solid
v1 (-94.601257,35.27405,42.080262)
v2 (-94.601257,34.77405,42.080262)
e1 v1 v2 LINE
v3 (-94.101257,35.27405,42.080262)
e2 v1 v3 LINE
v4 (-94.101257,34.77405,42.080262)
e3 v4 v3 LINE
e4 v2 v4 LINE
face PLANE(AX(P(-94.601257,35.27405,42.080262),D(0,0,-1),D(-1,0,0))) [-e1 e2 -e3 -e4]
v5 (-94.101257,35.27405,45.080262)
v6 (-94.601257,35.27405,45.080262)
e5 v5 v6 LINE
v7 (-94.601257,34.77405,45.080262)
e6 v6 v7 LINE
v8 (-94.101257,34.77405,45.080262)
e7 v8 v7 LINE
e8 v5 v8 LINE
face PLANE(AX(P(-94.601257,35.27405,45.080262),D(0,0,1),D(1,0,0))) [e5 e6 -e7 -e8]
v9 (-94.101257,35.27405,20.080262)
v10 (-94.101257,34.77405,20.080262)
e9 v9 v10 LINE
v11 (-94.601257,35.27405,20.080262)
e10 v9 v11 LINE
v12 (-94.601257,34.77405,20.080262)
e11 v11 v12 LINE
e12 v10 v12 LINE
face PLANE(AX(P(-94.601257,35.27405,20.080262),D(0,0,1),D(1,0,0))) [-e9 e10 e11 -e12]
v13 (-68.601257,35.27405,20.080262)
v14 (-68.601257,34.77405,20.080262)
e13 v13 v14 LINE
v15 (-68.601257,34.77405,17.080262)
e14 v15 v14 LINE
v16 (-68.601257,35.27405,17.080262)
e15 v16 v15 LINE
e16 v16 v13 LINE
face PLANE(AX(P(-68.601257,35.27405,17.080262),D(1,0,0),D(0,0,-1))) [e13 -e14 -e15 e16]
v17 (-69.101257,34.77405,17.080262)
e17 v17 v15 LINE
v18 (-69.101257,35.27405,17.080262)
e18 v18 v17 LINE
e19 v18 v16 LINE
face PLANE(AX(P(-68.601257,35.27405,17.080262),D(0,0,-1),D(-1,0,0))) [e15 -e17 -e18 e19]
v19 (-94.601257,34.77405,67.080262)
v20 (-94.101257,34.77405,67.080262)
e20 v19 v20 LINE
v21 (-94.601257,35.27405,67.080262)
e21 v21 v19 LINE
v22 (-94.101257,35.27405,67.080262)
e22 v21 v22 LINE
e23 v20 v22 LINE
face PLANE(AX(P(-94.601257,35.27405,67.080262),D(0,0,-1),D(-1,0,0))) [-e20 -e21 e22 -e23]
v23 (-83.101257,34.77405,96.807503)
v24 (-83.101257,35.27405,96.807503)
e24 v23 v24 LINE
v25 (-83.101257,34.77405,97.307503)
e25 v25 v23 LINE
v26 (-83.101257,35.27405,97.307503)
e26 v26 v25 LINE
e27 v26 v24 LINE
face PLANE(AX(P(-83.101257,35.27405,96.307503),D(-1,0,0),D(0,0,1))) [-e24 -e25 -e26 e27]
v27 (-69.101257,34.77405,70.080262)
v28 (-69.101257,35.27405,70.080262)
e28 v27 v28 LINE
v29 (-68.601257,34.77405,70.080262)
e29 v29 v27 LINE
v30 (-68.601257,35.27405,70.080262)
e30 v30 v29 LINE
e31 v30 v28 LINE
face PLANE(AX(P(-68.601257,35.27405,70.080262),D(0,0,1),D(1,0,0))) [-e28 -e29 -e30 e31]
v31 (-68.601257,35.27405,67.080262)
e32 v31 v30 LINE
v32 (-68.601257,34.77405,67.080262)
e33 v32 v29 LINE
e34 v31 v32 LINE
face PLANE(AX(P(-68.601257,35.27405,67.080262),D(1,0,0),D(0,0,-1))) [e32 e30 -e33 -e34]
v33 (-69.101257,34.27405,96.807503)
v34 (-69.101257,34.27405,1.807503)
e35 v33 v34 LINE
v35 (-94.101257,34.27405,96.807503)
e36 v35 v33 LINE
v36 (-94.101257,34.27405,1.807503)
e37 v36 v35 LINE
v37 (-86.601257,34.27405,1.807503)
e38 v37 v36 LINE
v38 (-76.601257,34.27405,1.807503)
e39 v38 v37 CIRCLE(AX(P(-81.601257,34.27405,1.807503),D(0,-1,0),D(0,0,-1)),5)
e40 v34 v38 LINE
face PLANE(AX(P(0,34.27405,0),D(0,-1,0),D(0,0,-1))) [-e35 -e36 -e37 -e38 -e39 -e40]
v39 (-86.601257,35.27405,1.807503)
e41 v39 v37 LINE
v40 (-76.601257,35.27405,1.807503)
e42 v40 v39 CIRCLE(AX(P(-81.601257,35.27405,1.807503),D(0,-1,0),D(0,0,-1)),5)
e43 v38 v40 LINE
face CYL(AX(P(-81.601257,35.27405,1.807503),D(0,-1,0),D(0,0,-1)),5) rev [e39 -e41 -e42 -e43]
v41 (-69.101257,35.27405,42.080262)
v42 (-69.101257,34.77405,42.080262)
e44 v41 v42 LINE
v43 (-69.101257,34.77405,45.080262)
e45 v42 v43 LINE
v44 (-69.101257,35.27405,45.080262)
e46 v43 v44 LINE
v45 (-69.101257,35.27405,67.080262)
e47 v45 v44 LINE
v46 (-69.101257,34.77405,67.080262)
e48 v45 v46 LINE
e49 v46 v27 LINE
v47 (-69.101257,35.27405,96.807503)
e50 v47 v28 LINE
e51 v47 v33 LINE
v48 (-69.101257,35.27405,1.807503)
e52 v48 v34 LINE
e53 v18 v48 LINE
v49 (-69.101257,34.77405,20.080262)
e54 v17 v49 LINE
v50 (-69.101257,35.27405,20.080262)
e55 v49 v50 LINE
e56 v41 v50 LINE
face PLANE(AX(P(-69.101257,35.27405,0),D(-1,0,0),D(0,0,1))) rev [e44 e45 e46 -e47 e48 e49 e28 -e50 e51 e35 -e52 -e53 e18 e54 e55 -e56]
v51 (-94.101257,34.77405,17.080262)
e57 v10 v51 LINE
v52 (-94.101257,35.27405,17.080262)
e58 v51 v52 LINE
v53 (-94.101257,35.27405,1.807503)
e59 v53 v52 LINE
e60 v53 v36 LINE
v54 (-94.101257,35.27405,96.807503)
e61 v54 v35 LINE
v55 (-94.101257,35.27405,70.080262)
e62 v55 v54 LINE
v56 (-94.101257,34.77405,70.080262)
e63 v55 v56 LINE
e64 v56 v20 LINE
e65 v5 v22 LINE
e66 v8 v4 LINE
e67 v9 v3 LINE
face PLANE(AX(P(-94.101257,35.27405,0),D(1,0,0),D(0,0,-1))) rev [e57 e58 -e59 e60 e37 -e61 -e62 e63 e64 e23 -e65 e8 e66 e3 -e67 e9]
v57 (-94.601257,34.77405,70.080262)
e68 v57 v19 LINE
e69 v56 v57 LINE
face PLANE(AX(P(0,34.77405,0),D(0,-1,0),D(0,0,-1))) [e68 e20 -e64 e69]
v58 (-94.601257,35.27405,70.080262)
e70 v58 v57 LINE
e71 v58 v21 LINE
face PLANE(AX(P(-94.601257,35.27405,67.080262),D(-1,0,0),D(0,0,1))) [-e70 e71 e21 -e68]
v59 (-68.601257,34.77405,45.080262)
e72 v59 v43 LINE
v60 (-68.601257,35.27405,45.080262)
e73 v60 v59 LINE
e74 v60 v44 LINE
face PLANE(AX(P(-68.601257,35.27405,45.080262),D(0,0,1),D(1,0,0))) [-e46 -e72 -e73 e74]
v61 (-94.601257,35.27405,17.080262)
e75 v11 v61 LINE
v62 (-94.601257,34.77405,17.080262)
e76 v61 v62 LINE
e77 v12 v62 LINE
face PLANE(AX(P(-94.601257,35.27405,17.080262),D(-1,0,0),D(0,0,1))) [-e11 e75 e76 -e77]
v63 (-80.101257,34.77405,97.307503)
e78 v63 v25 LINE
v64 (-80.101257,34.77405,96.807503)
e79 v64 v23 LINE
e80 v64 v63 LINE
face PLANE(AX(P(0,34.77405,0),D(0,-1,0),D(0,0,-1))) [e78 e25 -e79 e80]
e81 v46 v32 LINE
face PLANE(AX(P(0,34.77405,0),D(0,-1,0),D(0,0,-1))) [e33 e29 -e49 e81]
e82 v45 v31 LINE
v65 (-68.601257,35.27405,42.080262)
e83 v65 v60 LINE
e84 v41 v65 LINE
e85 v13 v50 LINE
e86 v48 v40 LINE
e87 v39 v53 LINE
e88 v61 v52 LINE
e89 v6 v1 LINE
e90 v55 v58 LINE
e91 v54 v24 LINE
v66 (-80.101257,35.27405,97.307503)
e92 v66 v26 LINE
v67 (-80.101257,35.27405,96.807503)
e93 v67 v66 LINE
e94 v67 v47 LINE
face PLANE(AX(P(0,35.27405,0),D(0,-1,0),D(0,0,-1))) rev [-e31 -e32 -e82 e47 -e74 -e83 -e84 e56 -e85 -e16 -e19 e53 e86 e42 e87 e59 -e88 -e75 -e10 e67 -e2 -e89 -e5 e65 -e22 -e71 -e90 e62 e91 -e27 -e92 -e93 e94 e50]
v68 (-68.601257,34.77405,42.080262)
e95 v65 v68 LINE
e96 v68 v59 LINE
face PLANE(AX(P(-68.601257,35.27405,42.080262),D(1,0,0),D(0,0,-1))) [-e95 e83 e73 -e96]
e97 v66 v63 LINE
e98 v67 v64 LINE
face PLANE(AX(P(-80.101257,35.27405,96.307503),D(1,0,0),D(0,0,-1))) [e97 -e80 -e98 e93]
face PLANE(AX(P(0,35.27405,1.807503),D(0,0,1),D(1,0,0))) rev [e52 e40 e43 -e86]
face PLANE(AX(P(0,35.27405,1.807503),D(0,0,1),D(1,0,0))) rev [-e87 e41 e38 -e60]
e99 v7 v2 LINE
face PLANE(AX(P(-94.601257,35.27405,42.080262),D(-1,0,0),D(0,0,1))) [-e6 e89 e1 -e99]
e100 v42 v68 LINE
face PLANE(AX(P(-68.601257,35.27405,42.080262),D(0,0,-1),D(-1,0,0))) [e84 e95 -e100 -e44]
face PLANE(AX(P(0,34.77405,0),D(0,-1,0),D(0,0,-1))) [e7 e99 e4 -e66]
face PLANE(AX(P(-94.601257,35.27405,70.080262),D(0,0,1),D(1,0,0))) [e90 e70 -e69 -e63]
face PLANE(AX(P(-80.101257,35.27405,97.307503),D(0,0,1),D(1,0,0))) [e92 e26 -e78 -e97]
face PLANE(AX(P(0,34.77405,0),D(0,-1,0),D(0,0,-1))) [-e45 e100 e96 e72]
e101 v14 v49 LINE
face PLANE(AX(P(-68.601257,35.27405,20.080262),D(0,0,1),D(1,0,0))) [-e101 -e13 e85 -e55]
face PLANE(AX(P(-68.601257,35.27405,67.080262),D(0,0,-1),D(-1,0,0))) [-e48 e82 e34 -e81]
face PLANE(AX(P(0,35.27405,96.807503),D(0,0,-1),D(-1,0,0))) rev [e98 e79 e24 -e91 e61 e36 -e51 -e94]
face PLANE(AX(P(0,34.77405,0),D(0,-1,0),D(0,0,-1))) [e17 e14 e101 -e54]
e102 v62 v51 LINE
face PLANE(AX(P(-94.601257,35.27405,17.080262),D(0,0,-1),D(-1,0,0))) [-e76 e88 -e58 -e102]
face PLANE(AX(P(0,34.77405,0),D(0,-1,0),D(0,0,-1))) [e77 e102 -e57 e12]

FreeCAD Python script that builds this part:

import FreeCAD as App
import Part
import Sketcher
from FreeCAD import Vector
Q = App.Units.Quantity


def add_polygon(sketch, points):
    """Adds a closed chain of lines whose ends are joined by coincident constraints."""
    first, n = sketch.GeometryCount, len(points)
    for a, b in zip(points, points[1:] + points[:1]):
        sketch.addGeometry(Part.LineSegment(App.Vector(*a, 0), App.Vector(*b, 0)), False)
    for i in range(n):
        sketch.addConstraint(Sketcher.Constraint("Coincident", first + i, 2, first + (i + 1) % n, 1))

doc = App.newDocument("Part")
body = doc.addObject("PartDesign::Body", "Body")

# Sketch on XZ plane
sketch1 = body.newObject("Sketcher::SketchObject", "Sketch")
sketch1.AttachmentSupport = (doc.getObject("XZ_Plane"), [""])
sketch1.MapMode = "FlatFace"
sketch1.AttachmentOffset = App.Placement(Vector(0, 0, -34.27405), App.Rotation())
add_polygon(sketch1, [(-94.101257, 96.807503), (-94.101257, 1.807503), (-69.101257, 1.807503), (-69.101257, 96.807503)])  # lines 0-3
sketch1.addConstraint(Sketcher.Constraint("Vertical", 0))
sketch1.addConstraint(Sketcher.Constraint("Horizontal", 1))
sketch1.addConstraint(Sketcher.Constraint("Vertical", 2))
sketch1.addConstraint(Sketcher.Constraint("Horizontal", 3))
sketch1.addConstraint(Sketcher.Constraint("DistanceX", 1, 1, 1, 2, Q("25 mm")))
sketch1.addConstraint(Sketcher.Constraint("DistanceY", 0, 2, 0, 1, Q("95 mm")))
sketch1.addConstraint(Sketcher.Constraint("DistanceX", 0, 2, -1, 1, Q("94.101257 mm")))
sketch1.addConstraint(Sketcher.Constraint("DistanceY", -1, 1, 0, 2, Q("1.807503 mm")))
pad1 = body.newObject("PartDesign::Pad", "Pad")
pad1.Profile = sketch1
pad1.Length = 1
pad1.Reversed = True

# Sketch on XZ plane
sketch2 = body.newObject("Sketcher::SketchObject", "Sketch001")
sketch2.AttachmentSupport = (doc.getObject("XZ_Plane"), [""])
sketch2.MapMode = "FlatFace"
sketch2.AttachmentOffset = App.Placement(Vector(0, 0, -34.77405), App.Rotation())
add_polygon(sketch2, [(-83.101257, 97.307503), (-83.101257, 96.307503), (-80.101257, 96.307503), (-80.101257, 97.307503)])  # lines 0-3
add_polygon(sketch2, [(-94.601257, 70.080262), (-94.601257, 67.080262), (-93.601257, 67.080262), (-93.601257, 70.080262)])  # lines 4-7
add_polygon(sketch2, [(-94.601257, 45.080262), (-94.601257, 42.080262), (-93.601257, 42.080262), (-93.601257, 45.080262)])  # lines 8-11
add_polygon(sketch2, [(-94.601257, 20.080262), (-94.601257, 17.080262), (-93.601257, 17.080262), (-93.601257, 20.080262)])  # lines 12-15
add_polygon(sketch2, [(-69.601257, 20.080262), (-69.601257, 17.080262), (-68.601257, 17.080262), (-68.601257, 20.080262)])  # lines 16-19
add_polygon(sketch2, [(-69.601257, 45.080262), (-69.601257, 42.080262), (-68.601257, 42.080262), (-68.601257, 45.080262)])  # lines 20-23
add_polygon(sketch2, [(-69.601257, 70.080262), (-69.601257, 67.080262), (-68.601257, 67.080262), (-68.601257, 70.080262)])  # lines 24-27
sketch2.addConstraint(Sketcher.Constraint("Vertical", 0))
sketch2.addConstraint(Sketcher.Constraint("Horizontal", 1))
sketch2.addConstraint(Sketcher.Constraint("Vertical", 2))
sketch2.addConstraint(Sketcher.Constraint("Horizontal", 3))
sketch2.addConstraint(Sketcher.Constraint("Vertical", 4))
sketch2.addConstraint(Sketcher.Constraint("Horizontal", 5))
sketch2.addConstraint(Sketcher.Constraint("Vertical", 6))
sketch2.addConstraint(Sketcher.Constraint("Horizontal", 7))
sketch2.addConstraint(Sketcher.Constraint("Vertical", 8))
sketch2.addConstraint(Sketcher.Constraint("Horizontal", 9))
sketch2.addConstraint(Sketcher.Constraint("Vertical", 10))
sketch2.addConstraint(Sketcher.Constraint("Horizontal", 11))
sketch2.addConstraint(Sketcher.Constraint("Vertical", 12))
sketch2.addConstraint(Sketcher.Constraint("Horizontal", 13))
sketch2.addConstraint(Sketcher.Constraint("Vertical", 14))
sketch2.addConstraint(Sketcher.Constraint("Horizontal", 15))
sketch2.addConstraint(Sketcher.Constraint("Vertical", 16))
sketch2.addConstraint(Sketcher.Constraint("Horizontal", 17))
sketch2.addConstraint(Sketcher.Constraint("Vertical", 18))
sketch2.addConstraint(Sketcher.Constraint("Horizontal", 19))
sketch2.addConstraint(Sketcher.Constraint("Vertical", 20))
sketch2.addConstraint(Sketcher.Constraint("Horizontal", 21))
sketch2.addConstraint(Sketcher.Constraint("Vertical", 22))
sketch2.addConstraint(Sketcher.Constraint("Horizontal", 23))
sketch2.addConstraint(Sketcher.Constraint("Vertical", 24))
sketch2.addConstraint(Sketcher.Constraint("Horizontal", 25))
sketch2.addConstraint(Sketcher.Constraint("Vertical", 26))
sketch2.addConstraint(Sketcher.Constraint("Horizontal", 27))
sketch2.addConstraint(Sketcher.Constraint("Horizontal", 13, 2, 16, 2))
sketch2.addConstraint(Sketcher.Constraint("Horizontal", 15, 2, 18, 2))
sketch2.addConstraint(Sketcher.Constraint("Horizontal", 9, 2, 20, 2))
sketch2.addConstraint(Sketcher.Constraint("Horizontal", 11, 2, 22, 2))
sketch2.addConstraint(Sketcher.Constraint("Horizontal", 5, 2, 24, 2))
sketch2.addConstraint(Sketcher.Constraint("Horizontal", 7, 2, 26, 2))
sketch2.addConstraint(Sketcher.Constraint("Vertical", 7, 2, 8, 2))
sketch2.addConstraint(Sketcher.Constraint("Vertical", 6, 2, 9, 2))
sketch2.addConstraint(Sketcher.Constraint("Vertical", 11, 2, 12, 2))
sketch2.addConstraint(Sketcher.Constraint("Vertical", 10, 2, 13, 2))
sketch2.addConstraint(Sketcher.Constraint("Vertical", 19, 2, 20, 2))
sketch2.addConstraint(Sketcher.Constraint("Vertical", 18, 2, 21, 2))
sketch2.addConstraint(Sketcher.Constraint("Vertical", 23, 2, 24, 2))
sketch2.addConstraint(Sketcher.Constraint("Vertical", 22, 2, 25, 2))
sketch2.addConstraint(Sketcher.Constraint("Equal", 15, 17))
sketch2.addConstraint(Sketcher.Constraint("Equal", 27, 0))
sketch2.addConstraint(Sketcher.Constraint("Equal", 3, 4))
sketch2.addConstraint(Sketcher.Constraint("Equal", 6, 8))
sketch2.addConstraint(Sketcher.Constraint("Equal", 10, 12))
sketch2.addConstraint(Sketcher.Constraint("DistanceX", 1, 1, 1, 2, Q("3 mm")))
sketch2.addConstraint(Sketcher.Constraint("DistanceX", 5, 1, 5, 2, Q("1 mm")))
sketch2.addConstraint(Sketcher.Constraint("DistanceY", 8, 2, 4, 2, Q("25 mm")))
sketch2.addConstraint(Sketcher.Constraint("DistanceY", 12, 2, 8, 2, Q("25 mm")))
sketch2.addConstraint(Sketcher.Constraint("DistanceX", 13, 2, 16, 2, Q("24 mm")))
sketch2.addConstraint(Sketcher.Constraint("DistanceX", 4, 2, 0, 2, Q("11.5 mm")))
sketch2.addConstraint(Sketcher.Constraint("DistanceY", 4, 2, 0, 2, Q("29.227241 mm")))
sketch2.addConstraint(Sketcher.Constraint("DistanceX", 0, 2, -1, 1, Q("83.101257 mm")))
sketch2.addConstraint(Sketcher.Constraint("DistanceY", -1, 1, 0, 2, Q("96.307503 mm")))
pad2 = body.newObject("PartDesign::Pad", "Pad001")
pad2.Profile = sketch2
pad2.Length = 0.5
pad2.Reversed = True

# Sketch on XZ plane
sketch3 = body.newObject("Sketcher::SketchObject", "Sketch002")
sketch3.AttachmentSupport = (doc.getObject("XZ_Plane"), [""])
sketch3.MapMode = "FlatFace"
sketch3.AttachmentOffset = App.Placement(Vector(0, 0, -34.27405), App.Rotation())
sketch3.addGeometry(Part.Circle(Vector(-81.601257, 1.807503, 0), Vector(0, 0, 1), 5), False)
sketch3.addConstraint(Sketcher.Constraint("Diameter", 0, Q("10 mm")))
sketch3.addConstraint(Sketcher.Constraint("DistanceX", 0, 3, -1, 1, Q("81.601257 mm")))
sketch3.addConstraint(Sketcher.Constraint("DistanceY", -1, 1, 0, 3, Q("1.807503 mm")))
pocket1 = body.newObject("PartDesign::Pocket", "Pocket")
pocket1.Profile = sketch3
pocket1.Length = 1

doc.recompute()
